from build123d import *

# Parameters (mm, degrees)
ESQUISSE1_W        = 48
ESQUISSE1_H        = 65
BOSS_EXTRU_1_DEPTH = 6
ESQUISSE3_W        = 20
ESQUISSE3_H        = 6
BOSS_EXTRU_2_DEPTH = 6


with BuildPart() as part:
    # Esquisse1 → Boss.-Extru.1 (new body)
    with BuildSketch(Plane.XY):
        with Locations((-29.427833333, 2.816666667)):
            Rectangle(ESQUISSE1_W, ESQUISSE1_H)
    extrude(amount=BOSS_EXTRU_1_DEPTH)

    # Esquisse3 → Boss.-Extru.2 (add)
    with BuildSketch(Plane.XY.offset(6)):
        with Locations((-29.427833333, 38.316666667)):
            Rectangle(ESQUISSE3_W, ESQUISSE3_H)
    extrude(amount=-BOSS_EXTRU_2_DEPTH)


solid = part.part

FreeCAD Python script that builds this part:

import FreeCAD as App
import Part
import Sketcher

V = App.Vector
Q = App.Units.Quantity

doc = App.newDocument("Part")
params = doc.addObject("Spreadsheet::Sheet", "Params")
for row, (alias, value) in enumerate([
    ("sketch1_width", "48 mm"),
    ("sketch1_height", "65 mm"),
    ("pad1_length", "6 mm"),
    ("sketch2_width", "20 mm"),
    ("sketch2_height", "6 mm"),
    ("pad2_length", "6 mm"),
], start=1):
    params.set(f"A{row}", alias)
    params.set(f"B{row}", "=" + value)
    params.setAlias(f"B{row}", alias)

body = doc.addObject("PartDesign::Body", "Body")

sketch1 = body.newObject("Sketcher::SketchObject", "Sketch")
sketch1.AttachmentSupport = (doc.getObject("XY_Plane"), [""])
sketch1.MapMode = "FlatFace"
sketch1.addGeometry([
    Part.LineSegment(V(-53, 35, 0), V(-53, -30, 0)),
    Part.LineSegment(V(-53, -30, 0), V(-5, -30, 0)),
    Part.LineSegment(V(-5, -30, 0), V(-5, 35, 0)),
    Part.LineSegment(V(-5, 35, 0), V(-53, 35, 0)),
], False)
sketch1.addConstraint([
    Sketcher.Constraint("Coincident", 0, 2, 1, 1),
    Sketcher.Constraint("Coincident", 1, 2, 2, 1),
    Sketcher.Constraint("Coincident", 2, 2, 3, 1),
    Sketcher.Constraint("Coincident", 3, 2, 0, 1),
    Sketcher.Constraint("Vertical", 0),
    Sketcher.Constraint("Horizontal", 1),
    Sketcher.Constraint("Vertical", 2),
    Sketcher.Constraint("Horizontal", 3),
    Sketcher.Constraint("DistanceX", 1, 1, 1, 2, Q("48 mm")),
    Sketcher.Constraint("DistanceY", 0, 2, 0, 1, Q("65 mm")),
    Sketcher.Constraint("DistanceX", 0, 2, -1, 1, Q("53.427833 mm")),
    Sketcher.Constraint("DistanceY", 0, 2, -1, 1, Q("29.683333 mm")),
])
sketch1.setExpression("Constraints[8]", "Params.sketch1_width")
sketch1.setExpression("Constraints[9]", "Params.sketch1_height")
pad1 = body.newObject("PartDesign::Pad", "Pad")
pad1.Profile = sketch1
pad1.setExpression("Length", "Params.pad1_length")

sketch2 = body.newObject("Sketcher::SketchObject", "Sketch001")
sketch2.AttachmentSupport = (doc.getObject("XY_Plane"), [""])
sketch2.MapMode = "FlatFace"
sketch2.AttachmentOffset = App.Placement(V(0, 0, 6), App.Rotation())
sketch2.addGeometry([
    Part.LineSegment(V(-39, 41, 0), V(-39, 35, 0)),
    Part.LineSegment(V(-39, 35, 0), V(-19, 35, 0)),
    Part.LineSegment(V(-19, 35, 0), V(-19, 41, 0)),
    Part.LineSegment(V(-19, 41, 0), V(-39, 41, 0)),
], False)
sketch2.addConstraint([
    Sketcher.Constraint("Coincident", 0, 2, 1, 1),
    Sketcher.Constraint("Coincident", 1, 2, 2, 1),
    Sketcher.Constraint("Coincident", 2, 2, 3, 1),
    Sketcher.Constraint("Coincident", 3, 2, 0, 1),
    Sketcher.Constraint("Vertical", 0),
    Sketcher.Constraint("Horizontal", 1),
    Sketcher.Constraint("Vertical", 2),
    Sketcher.Constraint("Horizontal", 3),
    Sketcher.Constraint("DistanceX", 1, 1, 1, 2, Q("20 mm")),
    Sketcher.Constraint("DistanceY", 0, 2, 0, 1, Q("6 mm")),
    Sketcher.Constraint("DistanceX", 0, 2, -1, 1, Q("39.427833 mm")),
    Sketcher.Constraint("DistanceY", -1, 1, 0, 2, Q("35.316667 mm")),
])
sketch2.setExpression("Constraints[8]", "Params.sketch2_width")
sketch2.setExpression("Constraints[9]", "Params.sketch2_height")
pad2 = body.newObject("PartDesign::Pad", "Pad001")
pad2.Profile = sketch2
pad2.setExpression("Length", "Params.pad2_length")
pad2.Reversed = True

doc.recompute()
